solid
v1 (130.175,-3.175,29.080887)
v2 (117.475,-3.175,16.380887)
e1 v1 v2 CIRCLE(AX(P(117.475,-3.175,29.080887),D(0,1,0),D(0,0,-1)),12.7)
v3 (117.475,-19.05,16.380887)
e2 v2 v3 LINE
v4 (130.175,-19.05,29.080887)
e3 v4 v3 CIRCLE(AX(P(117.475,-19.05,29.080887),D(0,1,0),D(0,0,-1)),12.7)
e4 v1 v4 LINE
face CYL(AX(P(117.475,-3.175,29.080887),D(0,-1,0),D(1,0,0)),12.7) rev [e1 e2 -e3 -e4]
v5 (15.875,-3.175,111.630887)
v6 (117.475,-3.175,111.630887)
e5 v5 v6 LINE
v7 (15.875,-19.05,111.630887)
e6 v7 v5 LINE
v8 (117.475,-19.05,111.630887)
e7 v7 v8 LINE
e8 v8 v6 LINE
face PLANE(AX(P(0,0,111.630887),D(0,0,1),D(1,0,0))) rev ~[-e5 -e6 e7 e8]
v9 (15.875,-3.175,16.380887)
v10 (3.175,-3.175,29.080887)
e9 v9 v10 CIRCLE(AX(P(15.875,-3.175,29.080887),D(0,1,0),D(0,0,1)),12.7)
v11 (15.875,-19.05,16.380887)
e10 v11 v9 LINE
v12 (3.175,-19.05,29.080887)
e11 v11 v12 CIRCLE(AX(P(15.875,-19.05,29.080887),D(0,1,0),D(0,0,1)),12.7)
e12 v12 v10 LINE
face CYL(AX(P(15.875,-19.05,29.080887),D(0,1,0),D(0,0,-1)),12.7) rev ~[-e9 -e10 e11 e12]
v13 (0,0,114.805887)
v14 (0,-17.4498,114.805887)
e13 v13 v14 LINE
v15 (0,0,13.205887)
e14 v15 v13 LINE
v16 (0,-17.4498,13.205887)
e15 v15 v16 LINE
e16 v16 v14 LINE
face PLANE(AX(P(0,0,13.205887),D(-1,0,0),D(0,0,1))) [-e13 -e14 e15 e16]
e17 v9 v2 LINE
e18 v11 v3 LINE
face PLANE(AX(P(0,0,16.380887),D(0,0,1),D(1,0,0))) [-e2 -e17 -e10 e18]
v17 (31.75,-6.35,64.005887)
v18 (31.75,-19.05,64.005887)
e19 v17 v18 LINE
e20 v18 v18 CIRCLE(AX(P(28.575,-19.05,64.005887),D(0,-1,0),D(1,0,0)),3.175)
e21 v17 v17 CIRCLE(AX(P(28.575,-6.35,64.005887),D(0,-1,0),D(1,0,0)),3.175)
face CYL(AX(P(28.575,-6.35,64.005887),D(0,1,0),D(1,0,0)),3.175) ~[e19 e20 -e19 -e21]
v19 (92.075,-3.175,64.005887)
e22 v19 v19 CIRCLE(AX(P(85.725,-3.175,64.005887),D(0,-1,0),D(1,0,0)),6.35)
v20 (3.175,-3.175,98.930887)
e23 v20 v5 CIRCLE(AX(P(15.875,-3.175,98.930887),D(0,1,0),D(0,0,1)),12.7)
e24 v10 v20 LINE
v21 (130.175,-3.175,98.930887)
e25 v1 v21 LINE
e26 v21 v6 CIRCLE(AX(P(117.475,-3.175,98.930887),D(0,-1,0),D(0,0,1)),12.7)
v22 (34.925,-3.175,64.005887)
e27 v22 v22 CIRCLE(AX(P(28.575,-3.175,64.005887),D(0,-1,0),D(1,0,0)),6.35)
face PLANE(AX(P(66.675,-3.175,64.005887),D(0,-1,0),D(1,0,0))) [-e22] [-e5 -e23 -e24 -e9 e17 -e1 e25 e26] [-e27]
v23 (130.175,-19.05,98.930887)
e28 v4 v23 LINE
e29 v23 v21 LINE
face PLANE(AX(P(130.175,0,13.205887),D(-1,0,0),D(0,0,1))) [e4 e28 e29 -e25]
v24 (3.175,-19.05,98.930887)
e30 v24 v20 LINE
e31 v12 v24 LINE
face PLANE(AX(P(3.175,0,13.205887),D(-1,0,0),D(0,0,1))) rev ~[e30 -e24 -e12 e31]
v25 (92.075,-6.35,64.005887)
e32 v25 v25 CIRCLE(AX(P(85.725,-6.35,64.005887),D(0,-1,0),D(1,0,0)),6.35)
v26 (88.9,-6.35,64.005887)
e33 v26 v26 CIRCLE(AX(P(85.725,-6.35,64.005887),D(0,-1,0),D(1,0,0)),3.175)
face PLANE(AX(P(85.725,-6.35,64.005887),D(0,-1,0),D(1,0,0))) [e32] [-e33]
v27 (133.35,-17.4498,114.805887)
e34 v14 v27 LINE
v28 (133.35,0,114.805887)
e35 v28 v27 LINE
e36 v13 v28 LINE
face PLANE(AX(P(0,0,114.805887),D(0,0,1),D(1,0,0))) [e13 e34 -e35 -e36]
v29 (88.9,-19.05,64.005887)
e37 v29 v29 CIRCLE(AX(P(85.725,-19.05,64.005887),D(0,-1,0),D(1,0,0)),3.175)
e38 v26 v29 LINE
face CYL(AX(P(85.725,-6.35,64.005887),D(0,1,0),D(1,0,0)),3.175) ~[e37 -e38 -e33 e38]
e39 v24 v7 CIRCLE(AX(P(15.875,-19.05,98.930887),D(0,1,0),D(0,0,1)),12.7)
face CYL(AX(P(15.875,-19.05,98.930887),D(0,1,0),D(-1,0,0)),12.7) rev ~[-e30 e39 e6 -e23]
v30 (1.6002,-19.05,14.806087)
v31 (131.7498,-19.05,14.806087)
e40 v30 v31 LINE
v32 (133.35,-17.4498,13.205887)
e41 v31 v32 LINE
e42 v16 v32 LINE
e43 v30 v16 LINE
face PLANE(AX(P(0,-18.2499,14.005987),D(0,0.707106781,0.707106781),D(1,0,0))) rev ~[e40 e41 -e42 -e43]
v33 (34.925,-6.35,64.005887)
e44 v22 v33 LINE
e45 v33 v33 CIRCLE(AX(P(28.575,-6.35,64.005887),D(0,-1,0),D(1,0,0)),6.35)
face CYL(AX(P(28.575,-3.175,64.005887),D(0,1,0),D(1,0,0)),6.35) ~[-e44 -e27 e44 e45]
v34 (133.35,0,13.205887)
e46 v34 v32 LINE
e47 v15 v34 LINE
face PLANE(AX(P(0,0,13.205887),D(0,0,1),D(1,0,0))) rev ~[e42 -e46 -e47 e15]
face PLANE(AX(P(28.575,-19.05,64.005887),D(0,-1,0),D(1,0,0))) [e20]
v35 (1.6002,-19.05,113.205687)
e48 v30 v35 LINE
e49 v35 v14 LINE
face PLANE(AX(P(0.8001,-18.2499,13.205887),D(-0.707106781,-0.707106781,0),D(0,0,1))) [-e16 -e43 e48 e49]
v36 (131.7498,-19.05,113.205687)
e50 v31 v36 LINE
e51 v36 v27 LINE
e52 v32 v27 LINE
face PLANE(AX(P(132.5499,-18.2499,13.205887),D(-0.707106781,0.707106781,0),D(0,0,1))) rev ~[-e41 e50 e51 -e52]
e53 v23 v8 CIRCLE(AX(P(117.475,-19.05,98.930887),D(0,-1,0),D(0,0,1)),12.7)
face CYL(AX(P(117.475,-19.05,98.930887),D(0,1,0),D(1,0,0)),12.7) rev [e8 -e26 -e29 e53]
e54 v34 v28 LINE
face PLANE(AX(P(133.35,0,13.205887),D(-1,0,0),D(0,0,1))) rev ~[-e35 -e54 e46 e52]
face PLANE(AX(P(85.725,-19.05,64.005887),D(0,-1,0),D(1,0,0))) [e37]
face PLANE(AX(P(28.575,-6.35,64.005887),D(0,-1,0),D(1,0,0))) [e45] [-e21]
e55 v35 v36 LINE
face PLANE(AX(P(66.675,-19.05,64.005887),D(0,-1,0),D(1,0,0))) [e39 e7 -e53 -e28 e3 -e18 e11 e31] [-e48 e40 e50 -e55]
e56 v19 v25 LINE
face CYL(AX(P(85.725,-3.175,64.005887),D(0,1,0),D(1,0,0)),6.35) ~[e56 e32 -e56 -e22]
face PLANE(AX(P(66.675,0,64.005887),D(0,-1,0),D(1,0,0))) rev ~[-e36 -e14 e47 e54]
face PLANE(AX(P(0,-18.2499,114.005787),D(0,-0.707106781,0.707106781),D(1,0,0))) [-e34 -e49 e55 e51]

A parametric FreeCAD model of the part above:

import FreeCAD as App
import Part
import Sketcher

V = App.Vector
Q = App.Units.Quantity


def edges_at(feature, points):
    """Names of the edges that pass closest to the given points."""
    edges = feature.Shape.Edges
    near = lambda p: min(range(len(edges)), key=lambda i: edges[i].distToShape(Part.Vertex(*p))[0])
    return sorted({f"Edge{near(p) + 1}" for p in points})


def faces_at(feature, points):
    """Names of the faces that lie closest to the given points."""
    faces = feature.Shape.Faces
    near = lambda p: min(range(len(faces)), key=lambda i: faces[i].distToShape(Part.Vertex(*p))[0])
    return sorted({f"Face{near(p) + 1}" for p in points})


def add_polygon(sketch, points):
    """Adds a closed chain of lines whose ends are joined by coincident constraints."""
    first, n = sketch.GeometryCount, len(points)
    for a, b in zip(points, points[1:] + points[:1]):
        sketch.addGeometry(Part.LineSegment(App.Vector(*a, 0), App.Vector(*b, 0)), False)
    for i in range(n):
        sketch.addConstraint(Sketcher.Constraint("Coincident", first + i, 2, first + (i + 1) % n, 1))

doc = App.newDocument("Part")
body = doc.addObject("PartDesign::Body", "Body")

sketch1 = doc.addObject("Sketcher::SketchObject", "Sketch")
body.addObject(sketch1)
sketch1.AttachmentSupport = (doc.XZ_Plane, [""])
sketch1.MapMode = "FlatFace"
add_polygon(sketch1, [(0, 115), (0, 13), (133, 13), (133, 115)])
sketch1.addConstraint([
    Sketcher.Constraint("Vertical", 0),
    Sketcher.Constraint("Horizontal", 1),
    Sketcher.Constraint("Vertical", 2),
    Sketcher.Constraint("Horizontal", 3),
    Sketcher.Constraint("PointOnObject", 0, 2, -2),
    Sketcher.Constraint("DistanceY", 0, 2, 0, 1, Q("4 in")),
    Sketcher.Constraint("DistanceX", 1, 1, 1, 2, Q("5.25 in")),
    Sketcher.Constraint("DistanceY", -1, 1, 0, 2, 13.205887),
])
pad1 = doc.addObject("PartDesign::Pad", "Pad")
body.addObject(pad1)
pad1.Profile = sketch1
pad1.Length = Q("0.75 in")
doc.recompute()

thickness = doc.addObject("PartDesign::Thickness", "Thickness")
body.addObject(thickness)
thickness.Base = (pad1, faces_at(pad1, [(66.675, -19.05, 64.006)]))
thickness.Value = Q("0.125 in")
thickness.Reversed = True
thickness.Join = "Arc"

sketch2 = doc.addObject("Sketcher::SketchObject", "Sketch001")
body.addObject(sketch2)
sketch2.AttachmentSupport = (doc.XZ_Plane, [""])
sketch2.MapMode = "FlatFace"
sketch2.AttachmentOffset = App.Placement(V(0, 0, 0.125 * 25.4), App.Rotation())
sketch2.addGeometry([
    Part.Circle(V(29, 64, 0), V(0, 0, 1), 6),
    Part.Circle(V(86, 64, 0), V(0, 0, 1), 6),
], False)
sketch2.addConstraint([
    Sketcher.Constraint("Equal", 0, 1),
    Sketcher.Constraint("Horizontal", 0, 3, 1, 3),
    Sketcher.Constraint("Diameter", 0, Q("0.5 in")),
    Sketcher.Constraint("DistanceX", 0, 3, 1, 3, Q("2.25 in")),
    Sketcher.Constraint("DistanceX", -1, 1, 0, 3, Q("1.125 in")),
    Sketcher.Constraint("DistanceY", -1, 1, 0, 3, 64.005887),
])
pad2 = doc.addObject("PartDesign::Pad", "Pad001")
body.addObject(pad2)
pad2.Profile = sketch2
pad2.Length = Q("0.125 in")

sketch3 = doc.addObject("Sketcher::SketchObject", "Sketch002")
body.addObject(sketch3)
sketch3.AttachmentSupport = (doc.XZ_Plane, [""])
sketch3.MapMode = "FlatFace"
sketch3.AttachmentOffset = App.Placement(V(0, 0, 0.25 * 25.4), App.Rotation())
sketch3.addGeometry(Part.Circle(V(28.6, 64, 0), V(0, 0, 1), 3.2), False)
sketch3.addConstraint([
    Sketcher.Constraint("Diameter", 0, Q("0.25 in")),
    Sketcher.Constraint("DistanceX", -1, 1, 0, 3, Q("1.125 in")),
    Sketcher.Constraint("DistanceY", -1, 1, 0, 3, 64.005887),
])
pad3 = doc.addObject("PartDesign::Pad", "Pad002")
body.addObject(pad3)
pad3.Profile = sketch3
pad3.Length = Q("0.5 in")

sketch4 = doc.addObject("Sketcher::SketchObject", "Sketch003")
body.addObject(sketch4)
sketch4.AttachmentSupport = (doc.XZ_Plane, [""])
sketch4.MapMode = "FlatFace"
sketch4.AttachmentOffset = App.Placement(V(0, 0, 0.25 * 25.4), App.Rotation())
sketch4.addGeometry(Part.Circle(V(85.7, 64, 0), V(0, 0, 1), 3.2), False)
sketch4.addConstraint([
    Sketcher.Constraint("Diameter", 0, Q("0.25 in")),
    Sketcher.Constraint("DistanceX", -1, 1, 0, 3, Q("3.375 in")),
    Sketcher.Constraint("DistanceY", -1, 1, 0, 3, 64.005887),
])
pad4 = doc.addObject("PartDesign::Pad", "Pad003")
body.addObject(pad4)
pad4.Profile = sketch4
pad4.Length = Q("0.5 in")
doc.recompute()

fillet = doc.addObject("PartDesign::Fillet", "Fillet")
body.addObject(fillet)
fillet.Base = (pad4, edges_at(pad4, [
    (3.175, -11.113, 111.631),
    (3.175, -11.113, 16.381),
    (130.175, -11.113, 111.631),
    (130.175, -11.113, 16.381),
]))
fillet.Radius = Q("0.5 in")
doc.recompute()

chamfer = doc.addObject("PartDesign::Chamfer", "Chamfer")
body.addObject(chamfer)
chamfer.Base = (fillet, edges_at(fillet, [
    (66.675, -19.05, 114.806),
    (66.675, -19.05, 13.206),
    (133.35, -19.05, 64.006),
    (0, -19.05, 64.006),
]))
chamfer.Size = Q("0.063 in")

doc.recompute()
